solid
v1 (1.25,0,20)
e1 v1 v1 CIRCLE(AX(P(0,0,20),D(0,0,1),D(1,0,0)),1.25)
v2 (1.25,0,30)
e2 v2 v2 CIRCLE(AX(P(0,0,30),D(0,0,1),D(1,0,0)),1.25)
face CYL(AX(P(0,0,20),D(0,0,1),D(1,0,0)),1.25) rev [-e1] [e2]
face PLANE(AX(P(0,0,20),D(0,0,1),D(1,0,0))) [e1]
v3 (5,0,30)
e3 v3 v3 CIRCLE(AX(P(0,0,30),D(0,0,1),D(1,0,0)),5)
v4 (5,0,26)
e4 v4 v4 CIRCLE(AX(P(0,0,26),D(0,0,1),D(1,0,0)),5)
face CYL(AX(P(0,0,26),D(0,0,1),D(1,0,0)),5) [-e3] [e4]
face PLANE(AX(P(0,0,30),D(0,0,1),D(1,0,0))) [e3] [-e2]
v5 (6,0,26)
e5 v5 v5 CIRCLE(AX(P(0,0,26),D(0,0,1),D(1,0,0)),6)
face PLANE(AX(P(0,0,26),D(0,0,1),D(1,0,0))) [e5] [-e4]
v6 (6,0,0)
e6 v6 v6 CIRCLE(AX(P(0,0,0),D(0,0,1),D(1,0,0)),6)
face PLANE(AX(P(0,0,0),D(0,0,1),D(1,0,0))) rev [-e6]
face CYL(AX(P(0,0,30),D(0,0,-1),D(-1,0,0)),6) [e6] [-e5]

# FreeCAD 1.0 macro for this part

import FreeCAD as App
import Part
import Sketcher

doc = App.newDocument("Part")
params = doc.addObject("Spreadsheet::Sheet", "Params")
for row, (alias, value) in enumerate([
    ("sketch1_diameter", "12 mm"),
    ("pad1_length", "30 mm"),
    ("sketch2_diameter", "12 mm"),
    ("sketch2_diameter2", "10 mm"),
    ("pocket1_length", "4 mm"),
    ("sketch3_diameter", "2.5 mm"),
    ("pocket2_length", "10 mm"),
], start=1):
    params.set(f"A{row}", alias)
    params.set(f"B{row}", "=" + value)
    params.setAlias(f"B{row}", alias)

body = doc.addObject("PartDesign::Body", "Body")

# Sketch on XY plane
sketch1 = doc.addObject("Sketcher::SketchObject", "Sketch")
body.addObject(sketch1)
sketch1.AttachmentSupport = (doc.XY_Plane, [""])
sketch1.MapMode = "FlatFace"
sketch1.addGeometry(Part.Circle(App.Vector(0, 0, 0), App.Vector(0, 0, 1), 6), False)
sketch1.addConstraint([
    Sketcher.Constraint("Coincident", 0, 3, -1, 1),
    Sketcher.Constraint("Diameter", 0, 12.0),
])
sketch1.setExpression("Constraints[1]", "Params.sketch1_diameter")
pad1 = doc.addObject("PartDesign::Pad", "Pad")
body.addObject(pad1)
pad1.Profile = sketch1
pad1.setExpression("Length", "Params.pad1_length")

# Sketch on XY plane
sketch2 = doc.addObject("Sketcher::SketchObject", "Sketch001")
body.addObject(sketch2)
sketch2.AttachmentSupport = (doc.XY_Plane, [""])
sketch2.MapMode = "FlatFace"
sketch2.AttachmentOffset = App.Placement(App.Vector(0, 0, 26), App.Rotation())
sketch2.addGeometry([
    Part.Circle(App.Vector(0, 0, 0), App.Vector(0, 0, 1), 6),
    Part.Circle(App.Vector(0, 0, 0), App.Vector(0, 0, 1), 5),
], False)
sketch2.addConstraint([
    Sketcher.Constraint("Coincident", 0, 3, -1, 1),
    Sketcher.Constraint("Coincident", 1, 3, -1, 1),
    Sketcher.Constraint("Diameter", 0, 12.0),
    Sketcher.Constraint("Diameter", 1, 10.0),
])
sketch2.setExpression("Constraints[2]", "Params.sketch2_diameter")
sketch2.setExpression("Constraints[3]", "Params.sketch2_diameter2")
pocket1 = doc.addObject("PartDesign::Pocket", "Pocket")
body.addObject(pocket1)
pocket1.Profile = sketch2
pocket1.setExpression("Length", "Params.pocket1_length")
pocket1.Reversed = True

# Sketch on XY plane
sketch3 = doc.addObject("Sketcher::SketchObject", "Sketch002")
body.addObject(sketch3)
sketch3.AttachmentSupport = (doc.XY_Plane, [""])
sketch3.MapMode = "FlatFace"
sketch3.AttachmentOffset = App.Placement(App.Vector(0, 0, 30), App.Rotation())
sketch3.addGeometry(Part.Circle(App.Vector(0, 0, 0), App.Vector(0, 0, 1), 1.2), False)
sketch3.addConstraint([
    Sketcher.Constraint("Coincident", 0, 3, -1, 1),
    Sketcher.Constraint("Diameter", 0, 2.5),
])
sketch3.setExpression("Constraints[1]", "Params.sketch3_diameter")
pocket2 = doc.addObject("PartDesign::Pocket", "Pocket001")
body.addObject(pocket2)
pocket2.Profile = sketch3
pocket2.setExpression("Length", "Params.pocket2_length")

doc.recompute()
